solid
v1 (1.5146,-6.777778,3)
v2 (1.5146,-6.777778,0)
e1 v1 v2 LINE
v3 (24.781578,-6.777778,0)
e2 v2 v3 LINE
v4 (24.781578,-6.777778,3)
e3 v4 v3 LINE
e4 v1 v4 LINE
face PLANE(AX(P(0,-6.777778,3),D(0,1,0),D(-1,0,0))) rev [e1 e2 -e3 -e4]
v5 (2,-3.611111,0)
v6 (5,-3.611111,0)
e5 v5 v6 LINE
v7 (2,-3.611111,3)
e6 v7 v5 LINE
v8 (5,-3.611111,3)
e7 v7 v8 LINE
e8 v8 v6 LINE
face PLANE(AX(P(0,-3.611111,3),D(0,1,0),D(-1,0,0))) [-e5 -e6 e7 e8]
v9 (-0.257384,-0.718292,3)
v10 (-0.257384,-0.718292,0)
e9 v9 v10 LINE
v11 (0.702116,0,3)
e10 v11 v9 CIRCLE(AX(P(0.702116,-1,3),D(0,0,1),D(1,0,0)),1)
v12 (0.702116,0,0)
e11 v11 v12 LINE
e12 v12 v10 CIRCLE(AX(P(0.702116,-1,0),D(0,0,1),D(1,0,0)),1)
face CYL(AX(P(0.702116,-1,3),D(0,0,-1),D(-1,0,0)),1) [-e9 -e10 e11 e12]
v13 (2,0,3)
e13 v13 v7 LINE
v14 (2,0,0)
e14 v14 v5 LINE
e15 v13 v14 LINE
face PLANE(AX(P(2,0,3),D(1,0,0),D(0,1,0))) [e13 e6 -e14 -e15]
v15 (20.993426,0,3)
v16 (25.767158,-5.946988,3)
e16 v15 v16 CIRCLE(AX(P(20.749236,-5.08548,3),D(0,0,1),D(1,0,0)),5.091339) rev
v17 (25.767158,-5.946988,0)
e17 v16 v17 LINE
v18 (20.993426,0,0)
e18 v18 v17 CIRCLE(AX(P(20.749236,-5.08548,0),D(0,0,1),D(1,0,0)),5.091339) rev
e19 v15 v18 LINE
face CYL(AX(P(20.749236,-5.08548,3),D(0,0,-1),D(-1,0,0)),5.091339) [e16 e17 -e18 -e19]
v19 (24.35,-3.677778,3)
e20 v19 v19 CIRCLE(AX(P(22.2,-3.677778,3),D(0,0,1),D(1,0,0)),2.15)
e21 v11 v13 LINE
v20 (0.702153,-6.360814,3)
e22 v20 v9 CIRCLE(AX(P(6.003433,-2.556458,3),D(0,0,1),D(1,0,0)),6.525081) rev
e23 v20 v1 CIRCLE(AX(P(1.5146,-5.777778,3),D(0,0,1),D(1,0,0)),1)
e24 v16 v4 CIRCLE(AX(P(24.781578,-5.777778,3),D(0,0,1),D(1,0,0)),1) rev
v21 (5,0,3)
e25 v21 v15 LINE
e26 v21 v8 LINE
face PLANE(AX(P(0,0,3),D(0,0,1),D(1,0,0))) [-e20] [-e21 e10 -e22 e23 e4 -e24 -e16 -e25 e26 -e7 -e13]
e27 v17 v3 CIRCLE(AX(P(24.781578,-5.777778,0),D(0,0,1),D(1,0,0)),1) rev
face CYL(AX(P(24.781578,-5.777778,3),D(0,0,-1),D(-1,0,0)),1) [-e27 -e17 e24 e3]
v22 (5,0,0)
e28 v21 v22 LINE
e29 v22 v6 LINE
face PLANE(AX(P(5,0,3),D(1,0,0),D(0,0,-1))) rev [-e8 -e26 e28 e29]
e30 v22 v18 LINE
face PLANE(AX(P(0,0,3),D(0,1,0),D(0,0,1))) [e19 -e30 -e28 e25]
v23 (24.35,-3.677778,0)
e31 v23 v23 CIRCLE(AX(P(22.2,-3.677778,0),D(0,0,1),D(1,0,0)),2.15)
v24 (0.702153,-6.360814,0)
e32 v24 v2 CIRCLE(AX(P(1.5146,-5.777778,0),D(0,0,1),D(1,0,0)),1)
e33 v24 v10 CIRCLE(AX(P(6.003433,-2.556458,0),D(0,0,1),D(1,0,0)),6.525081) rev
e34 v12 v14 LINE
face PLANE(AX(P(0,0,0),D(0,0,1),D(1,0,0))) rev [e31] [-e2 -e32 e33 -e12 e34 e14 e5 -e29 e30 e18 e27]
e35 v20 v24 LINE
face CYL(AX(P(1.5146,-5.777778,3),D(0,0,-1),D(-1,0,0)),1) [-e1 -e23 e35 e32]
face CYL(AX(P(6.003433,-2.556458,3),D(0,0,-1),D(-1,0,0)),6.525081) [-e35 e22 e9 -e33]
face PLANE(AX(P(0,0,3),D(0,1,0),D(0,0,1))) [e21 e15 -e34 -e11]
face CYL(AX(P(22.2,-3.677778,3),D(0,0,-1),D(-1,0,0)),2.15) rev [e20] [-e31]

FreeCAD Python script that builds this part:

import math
import FreeCAD as App
import Part
import Sketcher

doc = App.newDocument("Part")
body = doc.addObject("PartDesign::Body", "Body")

# Sketch on XY plane
sketch1 = doc.addObject("Sketcher::SketchObject", "Sketch")
body.addObject(sketch1)
sketch1.AttachmentSupport = (doc.XY_Plane, [""])
sketch1.MapMode = "FlatFace"
sketch1.addGeometry(Part.LineSegment(App.Vector(5, 0, 0), App.Vector(5, -3.6, 0)), False)
sketch1.addGeometry(Part.LineSegment(App.Vector(5, -3.6, 0), App.Vector(2, -3.6, 0)), False)
sketch1.addGeometry(Part.LineSegment(App.Vector(2, -3.6, 0), App.Vector(2, 0, 0)), False)
sketch1.addGeometry(Part.LineSegment(App.Vector(2, 0, 0), App.Vector(0.7, 0, 0)), False)
sketch1.addGeometry(Part.ArcOfCircle(Part.Circle(App.Vector(0.7, -1, 0), App.Vector(0, 0, 1), 1), math.radians(90), math.radians(164)), False)
sketch1.addGeometry(Part.ArcOfCircle(Part.Circle(App.Vector(6, -2.6, 0), App.Vector(0, 0, 1), 6.5), math.radians(164), math.radians(216)), False)
sketch1.addGeometry(Part.ArcOfCircle(Part.Circle(App.Vector(1.5, -5.8, 0), App.Vector(0, 0, 1), 1), math.radians(-144), math.radians(-90)), False)
sketch1.addGeometry(Part.LineSegment(App.Vector(1.5, -6.8, 0), App.Vector(24.8, -6.8, 0)), False)
sketch1.addGeometry(Part.ArcOfCircle(Part.Circle(App.Vector(24.8, -5.8, 0), App.Vector(0, 0, 1), 1), math.radians(-90), math.radians(-10)), False)
sketch1.addGeometry(Part.ArcOfCircle(Part.Circle(App.Vector(20.7, -5.1, 0), App.Vector(0, 0, 1), 5.1), math.radians(-10), math.radians(87)), False)
sketch1.addGeometry(Part.LineSegment(App.Vector(21, 0, 0), App.Vector(5, 0, 0)), False)
sketch1.addGeometry(Part.Circle(App.Vector(22.2, -3.7, 0), App.Vector(0, 0, 1), 2.1), False)
sketch1.addConstraint(Sketcher.Constraint("Coincident", 0, 2, 1, 1))
sketch1.addConstraint(Sketcher.Constraint("Coincident", 1, 2, 2, 1))
sketch1.addConstraint(Sketcher.Constraint("Coincident", 2, 2, 3, 1))
sketch1.addConstraint(Sketcher.Constraint("Tangent", 3, 2, 4, 1))
sketch1.addConstraint(Sketcher.Constraint("Tangent", 4, 2, 5, 1))
sketch1.addConstraint(Sketcher.Constraint("Tangent", 5, 2, 6, 1))
sketch1.addConstraint(Sketcher.Constraint("Tangent", 6, 2, 7, 1))
sketch1.addConstraint(Sketcher.Constraint("Tangent", 7, 2, 8, 1))
sketch1.addConstraint(Sketcher.Constraint("Tangent", 8, 2, 9, 1))
sketch1.addConstraint(Sketcher.Constraint("Coincident", 9, 2, 10, 1))
sketch1.addConstraint(Sketcher.Constraint("Coincident", 10, 2, 0, 1))
sketch1.addConstraint(Sketcher.Constraint("Vertical", 0))
sketch1.addConstraint(Sketcher.Constraint("Horizontal", 1))
sketch1.addConstraint(Sketcher.Constraint("Vertical", 2))
sketch1.addConstraint(Sketcher.Constraint("Horizontal", 3))
sketch1.addConstraint(Sketcher.Constraint("Horizontal", 7))
sketch1.addConstraint(Sketcher.Constraint("Horizontal", 10))
sketch1.addConstraint(Sketcher.Constraint("Equal", 4, 6))
sketch1.addConstraint(Sketcher.Constraint("Equal", 6, 8))
sketch1.addConstraint(Sketcher.Constraint("PointOnObject", 2, 2, -1))
sketch1.addConstraint(Sketcher.Constraint("PointOnObject", 9, 2, -1))
sketch1.addConstraint(Sketcher.Constraint("Radius", 4, 1.0))
sketch1.addConstraint(Sketcher.Constraint("Diameter", 11, 4.3))
sketch1.addConstraint(Sketcher.Constraint("DistanceX", 1, 2, 1, 1, 3.0))
sketch1.addConstraint(Sketcher.Constraint("DistanceX", -1, 1, 0, 2, 5.0))
sketch1.addConstraint(Sketcher.Constraint("DistanceX", -1, 1, 11, 3, 22.2))
sketch1.addConstraint(Sketcher.Constraint("DistanceY", 8, 3, 11, 3, 2.1))
sketch1.addConstraint(Sketcher.Constraint("Radius", 5, 6.525081))
sketch1.addConstraint(Sketcher.Constraint("Radius", 9, 5.091339))
sketch1.addConstraint(Sketcher.Constraint("DistanceY", 0, 2, 0, 1, 3.611111))
sketch1.addConstraint(Sketcher.Constraint("DistanceX", -1, 1, 6, 3, 1.5146))
sketch1.addConstraint(Sketcher.Constraint("DistanceX", 4, 2, 4, 3, 0.9595))
sketch1.addConstraint(Sketcher.Constraint("DistanceX", 3, 2, 3, 1, 1.297884))
sketch1.addConstraint(Sketcher.Constraint("DistanceX", 7, 1, 7, 2, 23.266978))
sketch1.addConstraint(Sketcher.Constraint("DistanceX", 10, 2, 10, 1, 15.993426))
pad1 = doc.addObject("PartDesign::Pad", "Pad")
body.addObject(pad1)
pad1.Profile = sketch1
pad1.Length = 3

doc.recompute()
